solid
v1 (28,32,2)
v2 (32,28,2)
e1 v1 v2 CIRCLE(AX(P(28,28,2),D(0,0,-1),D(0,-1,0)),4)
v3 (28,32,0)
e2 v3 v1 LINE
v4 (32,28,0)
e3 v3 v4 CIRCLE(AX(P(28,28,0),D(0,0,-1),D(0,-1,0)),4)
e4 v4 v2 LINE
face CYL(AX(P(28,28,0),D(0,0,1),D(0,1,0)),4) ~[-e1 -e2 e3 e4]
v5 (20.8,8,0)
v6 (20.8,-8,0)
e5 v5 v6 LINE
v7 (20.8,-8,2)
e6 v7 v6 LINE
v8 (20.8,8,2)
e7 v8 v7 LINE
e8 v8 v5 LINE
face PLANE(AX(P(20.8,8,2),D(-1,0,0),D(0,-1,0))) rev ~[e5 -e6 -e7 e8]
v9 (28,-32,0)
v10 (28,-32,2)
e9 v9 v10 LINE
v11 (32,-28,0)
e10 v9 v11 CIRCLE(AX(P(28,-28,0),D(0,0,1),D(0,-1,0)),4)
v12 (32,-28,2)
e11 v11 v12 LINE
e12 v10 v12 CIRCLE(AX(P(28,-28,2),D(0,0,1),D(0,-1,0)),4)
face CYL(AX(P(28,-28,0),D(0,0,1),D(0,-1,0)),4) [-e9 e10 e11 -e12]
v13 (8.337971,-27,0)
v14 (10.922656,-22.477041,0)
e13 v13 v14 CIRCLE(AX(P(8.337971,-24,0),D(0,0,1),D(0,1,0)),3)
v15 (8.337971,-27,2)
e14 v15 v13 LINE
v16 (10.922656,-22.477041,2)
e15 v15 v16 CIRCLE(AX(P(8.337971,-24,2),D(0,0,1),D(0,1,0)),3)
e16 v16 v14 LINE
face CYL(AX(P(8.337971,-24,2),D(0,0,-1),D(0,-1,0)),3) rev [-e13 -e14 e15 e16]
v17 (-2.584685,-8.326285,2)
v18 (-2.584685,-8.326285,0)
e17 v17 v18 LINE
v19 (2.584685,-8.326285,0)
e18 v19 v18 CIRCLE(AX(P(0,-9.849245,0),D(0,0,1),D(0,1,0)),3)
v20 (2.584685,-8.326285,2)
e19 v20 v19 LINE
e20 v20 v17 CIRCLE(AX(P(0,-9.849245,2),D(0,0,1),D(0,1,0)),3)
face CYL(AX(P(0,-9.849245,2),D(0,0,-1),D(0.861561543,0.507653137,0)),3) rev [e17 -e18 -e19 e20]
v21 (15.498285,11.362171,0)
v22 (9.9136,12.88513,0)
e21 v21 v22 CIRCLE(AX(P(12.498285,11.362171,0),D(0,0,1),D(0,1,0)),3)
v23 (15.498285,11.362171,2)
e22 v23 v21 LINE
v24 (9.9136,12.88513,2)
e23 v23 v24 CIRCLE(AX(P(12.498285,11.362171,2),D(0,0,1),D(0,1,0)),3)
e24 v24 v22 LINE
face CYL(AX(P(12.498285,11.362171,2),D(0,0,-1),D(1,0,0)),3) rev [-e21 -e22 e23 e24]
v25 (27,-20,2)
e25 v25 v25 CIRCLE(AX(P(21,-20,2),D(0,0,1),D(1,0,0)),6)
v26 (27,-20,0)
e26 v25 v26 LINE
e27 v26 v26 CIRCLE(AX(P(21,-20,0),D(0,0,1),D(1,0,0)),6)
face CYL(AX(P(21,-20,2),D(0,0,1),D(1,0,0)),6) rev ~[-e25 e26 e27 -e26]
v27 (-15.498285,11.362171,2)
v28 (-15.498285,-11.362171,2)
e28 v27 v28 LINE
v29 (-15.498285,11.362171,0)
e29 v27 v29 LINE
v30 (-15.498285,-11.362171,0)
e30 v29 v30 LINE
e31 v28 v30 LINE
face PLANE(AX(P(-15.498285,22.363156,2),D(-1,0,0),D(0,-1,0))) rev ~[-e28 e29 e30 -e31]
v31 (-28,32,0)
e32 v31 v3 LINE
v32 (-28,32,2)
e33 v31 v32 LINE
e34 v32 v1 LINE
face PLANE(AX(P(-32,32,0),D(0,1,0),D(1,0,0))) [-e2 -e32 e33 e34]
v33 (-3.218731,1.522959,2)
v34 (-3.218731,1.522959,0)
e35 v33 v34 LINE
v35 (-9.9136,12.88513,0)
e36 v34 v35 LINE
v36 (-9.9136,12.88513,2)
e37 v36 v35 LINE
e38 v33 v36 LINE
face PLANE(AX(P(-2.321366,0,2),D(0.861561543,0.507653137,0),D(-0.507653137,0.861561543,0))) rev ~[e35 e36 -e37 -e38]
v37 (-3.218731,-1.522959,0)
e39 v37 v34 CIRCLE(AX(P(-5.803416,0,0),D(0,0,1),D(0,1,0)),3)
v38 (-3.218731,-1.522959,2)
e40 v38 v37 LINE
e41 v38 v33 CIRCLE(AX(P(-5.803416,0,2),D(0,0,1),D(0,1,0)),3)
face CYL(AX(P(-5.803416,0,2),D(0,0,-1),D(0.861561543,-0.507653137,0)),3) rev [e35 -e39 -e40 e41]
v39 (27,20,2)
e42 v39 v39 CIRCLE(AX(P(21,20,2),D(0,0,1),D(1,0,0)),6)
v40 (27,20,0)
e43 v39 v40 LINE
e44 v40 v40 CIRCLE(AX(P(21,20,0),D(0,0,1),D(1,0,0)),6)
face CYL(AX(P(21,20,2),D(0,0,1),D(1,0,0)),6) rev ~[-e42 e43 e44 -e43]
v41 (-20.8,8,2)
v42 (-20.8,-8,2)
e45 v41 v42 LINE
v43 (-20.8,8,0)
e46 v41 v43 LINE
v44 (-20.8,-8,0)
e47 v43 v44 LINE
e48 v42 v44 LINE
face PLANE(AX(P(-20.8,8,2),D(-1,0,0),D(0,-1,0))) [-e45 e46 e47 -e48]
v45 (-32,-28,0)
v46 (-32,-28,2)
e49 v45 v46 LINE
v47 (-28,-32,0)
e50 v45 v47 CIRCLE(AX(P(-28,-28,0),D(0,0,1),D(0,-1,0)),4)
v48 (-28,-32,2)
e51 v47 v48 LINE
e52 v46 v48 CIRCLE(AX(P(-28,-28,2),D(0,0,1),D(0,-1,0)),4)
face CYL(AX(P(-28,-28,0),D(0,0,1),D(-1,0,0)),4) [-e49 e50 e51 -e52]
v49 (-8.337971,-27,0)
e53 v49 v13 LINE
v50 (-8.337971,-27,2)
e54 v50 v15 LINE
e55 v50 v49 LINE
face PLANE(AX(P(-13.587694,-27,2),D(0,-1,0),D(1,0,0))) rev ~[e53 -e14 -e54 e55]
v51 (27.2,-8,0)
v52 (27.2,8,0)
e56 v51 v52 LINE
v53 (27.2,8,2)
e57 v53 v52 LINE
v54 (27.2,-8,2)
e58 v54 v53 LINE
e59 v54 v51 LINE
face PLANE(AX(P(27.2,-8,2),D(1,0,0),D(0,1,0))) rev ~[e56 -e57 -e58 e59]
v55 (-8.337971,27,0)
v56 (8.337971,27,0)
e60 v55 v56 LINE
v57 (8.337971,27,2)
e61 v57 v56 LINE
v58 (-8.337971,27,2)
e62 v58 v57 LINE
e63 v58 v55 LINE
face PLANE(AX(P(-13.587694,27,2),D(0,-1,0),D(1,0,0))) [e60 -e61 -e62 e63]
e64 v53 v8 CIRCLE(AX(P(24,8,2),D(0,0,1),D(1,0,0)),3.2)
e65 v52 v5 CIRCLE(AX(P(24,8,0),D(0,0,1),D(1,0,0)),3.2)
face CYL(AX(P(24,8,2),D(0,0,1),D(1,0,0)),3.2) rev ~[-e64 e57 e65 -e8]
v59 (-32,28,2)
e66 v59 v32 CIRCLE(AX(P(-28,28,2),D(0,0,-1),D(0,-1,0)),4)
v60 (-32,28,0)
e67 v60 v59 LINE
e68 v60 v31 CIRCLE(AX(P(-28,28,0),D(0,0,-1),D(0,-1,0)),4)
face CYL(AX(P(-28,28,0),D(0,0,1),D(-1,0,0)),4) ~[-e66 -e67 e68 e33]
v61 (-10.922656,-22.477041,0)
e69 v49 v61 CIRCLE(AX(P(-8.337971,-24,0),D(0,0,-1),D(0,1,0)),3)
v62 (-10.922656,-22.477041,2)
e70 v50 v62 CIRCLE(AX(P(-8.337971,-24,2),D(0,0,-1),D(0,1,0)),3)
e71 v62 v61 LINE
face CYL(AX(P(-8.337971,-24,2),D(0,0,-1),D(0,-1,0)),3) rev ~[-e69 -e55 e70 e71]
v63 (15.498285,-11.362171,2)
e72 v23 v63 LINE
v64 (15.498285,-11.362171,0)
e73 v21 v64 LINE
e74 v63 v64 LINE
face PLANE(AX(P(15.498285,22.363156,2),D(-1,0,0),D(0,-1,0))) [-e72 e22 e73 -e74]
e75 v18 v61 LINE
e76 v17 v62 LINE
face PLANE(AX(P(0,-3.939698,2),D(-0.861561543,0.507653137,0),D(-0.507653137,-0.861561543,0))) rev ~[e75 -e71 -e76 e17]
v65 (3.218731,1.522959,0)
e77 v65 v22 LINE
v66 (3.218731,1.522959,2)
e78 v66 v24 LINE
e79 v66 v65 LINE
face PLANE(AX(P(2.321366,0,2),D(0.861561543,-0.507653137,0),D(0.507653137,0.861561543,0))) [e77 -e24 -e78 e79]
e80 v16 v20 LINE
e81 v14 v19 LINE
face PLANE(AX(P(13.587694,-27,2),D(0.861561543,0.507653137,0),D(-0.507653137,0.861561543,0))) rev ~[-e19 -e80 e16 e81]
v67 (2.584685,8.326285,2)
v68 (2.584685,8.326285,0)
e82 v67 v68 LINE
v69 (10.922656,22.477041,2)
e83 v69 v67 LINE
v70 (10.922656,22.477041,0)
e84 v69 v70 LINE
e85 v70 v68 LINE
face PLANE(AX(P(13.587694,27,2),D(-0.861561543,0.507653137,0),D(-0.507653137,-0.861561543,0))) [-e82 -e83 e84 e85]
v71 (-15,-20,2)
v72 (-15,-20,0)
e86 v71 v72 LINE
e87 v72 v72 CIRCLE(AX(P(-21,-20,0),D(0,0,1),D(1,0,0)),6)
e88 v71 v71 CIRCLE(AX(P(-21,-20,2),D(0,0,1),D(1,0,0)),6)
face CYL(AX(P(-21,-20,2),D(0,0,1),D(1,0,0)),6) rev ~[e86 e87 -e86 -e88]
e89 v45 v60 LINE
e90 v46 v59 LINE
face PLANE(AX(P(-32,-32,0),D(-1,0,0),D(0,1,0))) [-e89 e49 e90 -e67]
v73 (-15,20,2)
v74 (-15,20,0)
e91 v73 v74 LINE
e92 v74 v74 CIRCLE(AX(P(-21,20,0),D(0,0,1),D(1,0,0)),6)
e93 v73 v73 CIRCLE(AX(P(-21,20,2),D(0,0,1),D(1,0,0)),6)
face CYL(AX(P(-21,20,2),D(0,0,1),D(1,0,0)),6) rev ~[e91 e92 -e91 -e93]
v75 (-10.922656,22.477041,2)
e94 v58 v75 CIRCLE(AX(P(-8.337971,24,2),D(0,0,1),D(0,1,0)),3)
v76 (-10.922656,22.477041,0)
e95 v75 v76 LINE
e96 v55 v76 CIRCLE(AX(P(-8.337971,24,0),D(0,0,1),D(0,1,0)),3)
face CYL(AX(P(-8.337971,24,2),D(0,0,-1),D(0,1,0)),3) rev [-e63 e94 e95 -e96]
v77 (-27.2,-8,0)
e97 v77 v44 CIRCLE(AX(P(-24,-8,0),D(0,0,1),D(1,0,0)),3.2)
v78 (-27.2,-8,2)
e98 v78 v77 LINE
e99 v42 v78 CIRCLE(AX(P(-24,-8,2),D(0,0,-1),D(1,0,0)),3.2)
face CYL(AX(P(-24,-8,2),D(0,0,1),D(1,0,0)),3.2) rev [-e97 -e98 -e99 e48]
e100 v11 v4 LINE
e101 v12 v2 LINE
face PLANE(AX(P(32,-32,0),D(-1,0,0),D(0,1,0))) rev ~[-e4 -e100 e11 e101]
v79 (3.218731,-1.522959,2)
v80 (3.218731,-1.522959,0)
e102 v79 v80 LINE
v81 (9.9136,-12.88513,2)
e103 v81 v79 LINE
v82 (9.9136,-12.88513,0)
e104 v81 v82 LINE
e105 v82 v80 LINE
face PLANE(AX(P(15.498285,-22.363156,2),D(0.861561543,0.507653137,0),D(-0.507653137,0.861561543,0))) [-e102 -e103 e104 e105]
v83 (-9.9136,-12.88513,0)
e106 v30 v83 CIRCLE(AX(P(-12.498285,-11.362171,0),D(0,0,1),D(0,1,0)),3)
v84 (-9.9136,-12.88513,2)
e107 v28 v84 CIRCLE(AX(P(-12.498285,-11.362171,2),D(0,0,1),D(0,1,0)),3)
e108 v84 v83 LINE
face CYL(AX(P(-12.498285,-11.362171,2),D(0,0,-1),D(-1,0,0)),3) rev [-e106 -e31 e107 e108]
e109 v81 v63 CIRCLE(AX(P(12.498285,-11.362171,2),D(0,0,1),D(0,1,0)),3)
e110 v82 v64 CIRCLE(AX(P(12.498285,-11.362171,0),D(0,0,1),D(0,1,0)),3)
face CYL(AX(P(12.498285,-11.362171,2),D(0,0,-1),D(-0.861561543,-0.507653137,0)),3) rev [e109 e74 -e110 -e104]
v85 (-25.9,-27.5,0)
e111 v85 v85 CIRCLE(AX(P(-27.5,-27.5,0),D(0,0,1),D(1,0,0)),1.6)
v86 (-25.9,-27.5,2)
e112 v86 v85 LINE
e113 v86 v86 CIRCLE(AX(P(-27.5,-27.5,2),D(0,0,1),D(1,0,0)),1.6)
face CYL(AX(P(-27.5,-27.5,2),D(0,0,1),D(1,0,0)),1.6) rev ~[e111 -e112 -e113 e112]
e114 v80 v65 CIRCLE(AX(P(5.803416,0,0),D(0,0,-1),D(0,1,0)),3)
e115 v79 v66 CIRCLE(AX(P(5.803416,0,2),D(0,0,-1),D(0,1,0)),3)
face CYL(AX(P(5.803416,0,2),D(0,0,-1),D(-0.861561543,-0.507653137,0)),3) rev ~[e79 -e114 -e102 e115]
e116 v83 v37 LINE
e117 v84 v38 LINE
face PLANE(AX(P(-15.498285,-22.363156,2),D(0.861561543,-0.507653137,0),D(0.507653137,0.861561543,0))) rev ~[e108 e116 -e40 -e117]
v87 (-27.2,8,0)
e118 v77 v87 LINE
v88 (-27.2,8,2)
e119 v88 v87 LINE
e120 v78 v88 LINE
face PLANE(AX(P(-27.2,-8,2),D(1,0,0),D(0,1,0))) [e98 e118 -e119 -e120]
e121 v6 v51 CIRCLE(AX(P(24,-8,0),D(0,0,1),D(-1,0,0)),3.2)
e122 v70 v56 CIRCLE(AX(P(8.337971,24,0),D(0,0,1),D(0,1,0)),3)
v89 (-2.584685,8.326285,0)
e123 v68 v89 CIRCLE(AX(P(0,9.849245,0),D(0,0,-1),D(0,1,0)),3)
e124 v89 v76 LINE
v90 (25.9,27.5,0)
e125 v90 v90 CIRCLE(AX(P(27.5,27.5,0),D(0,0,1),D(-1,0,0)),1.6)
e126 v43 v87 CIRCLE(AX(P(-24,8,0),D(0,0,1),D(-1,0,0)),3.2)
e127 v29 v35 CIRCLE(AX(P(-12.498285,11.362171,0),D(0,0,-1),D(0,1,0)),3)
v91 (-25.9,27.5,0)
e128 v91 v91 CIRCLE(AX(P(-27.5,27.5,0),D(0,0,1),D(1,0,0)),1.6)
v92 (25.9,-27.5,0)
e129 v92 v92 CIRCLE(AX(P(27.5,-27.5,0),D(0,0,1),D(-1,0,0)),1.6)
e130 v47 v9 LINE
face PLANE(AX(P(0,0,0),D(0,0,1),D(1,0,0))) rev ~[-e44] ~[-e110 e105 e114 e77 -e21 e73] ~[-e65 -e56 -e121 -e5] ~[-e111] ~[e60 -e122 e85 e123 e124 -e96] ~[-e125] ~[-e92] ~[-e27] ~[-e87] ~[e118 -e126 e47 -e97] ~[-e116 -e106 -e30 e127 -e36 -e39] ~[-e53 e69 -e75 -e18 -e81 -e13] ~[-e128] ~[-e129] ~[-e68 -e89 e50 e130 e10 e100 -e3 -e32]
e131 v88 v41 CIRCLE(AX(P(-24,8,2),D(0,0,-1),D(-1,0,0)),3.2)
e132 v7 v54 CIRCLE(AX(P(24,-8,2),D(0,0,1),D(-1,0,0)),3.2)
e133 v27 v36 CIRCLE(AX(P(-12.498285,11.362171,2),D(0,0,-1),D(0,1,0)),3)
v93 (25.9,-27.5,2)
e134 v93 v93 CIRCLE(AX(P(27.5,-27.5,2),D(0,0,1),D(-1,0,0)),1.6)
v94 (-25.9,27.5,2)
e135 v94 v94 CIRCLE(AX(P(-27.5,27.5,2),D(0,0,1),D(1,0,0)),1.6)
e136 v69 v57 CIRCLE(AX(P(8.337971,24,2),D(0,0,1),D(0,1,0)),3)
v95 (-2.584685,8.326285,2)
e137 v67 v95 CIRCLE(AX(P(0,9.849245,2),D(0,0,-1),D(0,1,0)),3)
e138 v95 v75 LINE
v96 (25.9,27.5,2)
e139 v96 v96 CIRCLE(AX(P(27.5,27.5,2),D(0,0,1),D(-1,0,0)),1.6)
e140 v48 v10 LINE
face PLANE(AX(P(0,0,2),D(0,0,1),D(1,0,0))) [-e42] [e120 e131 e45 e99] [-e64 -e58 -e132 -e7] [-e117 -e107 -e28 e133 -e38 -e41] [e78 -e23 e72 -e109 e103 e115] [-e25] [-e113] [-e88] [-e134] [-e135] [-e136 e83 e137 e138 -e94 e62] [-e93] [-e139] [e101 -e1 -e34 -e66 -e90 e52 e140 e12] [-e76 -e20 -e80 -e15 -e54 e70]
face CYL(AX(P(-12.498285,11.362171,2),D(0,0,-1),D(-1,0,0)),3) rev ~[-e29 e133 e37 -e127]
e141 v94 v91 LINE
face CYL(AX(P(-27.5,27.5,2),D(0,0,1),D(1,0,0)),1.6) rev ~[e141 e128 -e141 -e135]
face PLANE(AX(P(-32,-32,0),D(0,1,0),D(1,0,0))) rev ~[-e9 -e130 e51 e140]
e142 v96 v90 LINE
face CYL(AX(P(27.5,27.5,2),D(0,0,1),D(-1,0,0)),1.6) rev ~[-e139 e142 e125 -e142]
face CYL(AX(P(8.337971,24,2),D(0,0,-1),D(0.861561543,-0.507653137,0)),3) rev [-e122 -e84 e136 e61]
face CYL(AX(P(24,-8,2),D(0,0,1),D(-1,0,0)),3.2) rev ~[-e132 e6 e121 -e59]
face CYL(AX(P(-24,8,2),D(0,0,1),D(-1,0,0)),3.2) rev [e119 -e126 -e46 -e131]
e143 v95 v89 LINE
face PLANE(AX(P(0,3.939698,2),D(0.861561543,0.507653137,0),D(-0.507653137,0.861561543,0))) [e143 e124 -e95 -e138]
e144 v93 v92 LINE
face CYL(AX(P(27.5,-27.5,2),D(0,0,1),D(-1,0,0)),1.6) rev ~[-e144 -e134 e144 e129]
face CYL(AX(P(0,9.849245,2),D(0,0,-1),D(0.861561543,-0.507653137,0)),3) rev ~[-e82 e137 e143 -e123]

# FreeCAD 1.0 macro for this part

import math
import FreeCAD as App
import Part
import Sketcher
from FreeCAD import Vector
Q = App.Units.Quantity


def edges_at(feature, points):
    """Names of the edges that pass closest to the given points."""
    edges = feature.Shape.Edges
    near = lambda p: min(range(len(edges)), key=lambda i: edges[i].distToShape(Part.Vertex(*p))[0])
    return sorted({f"Edge{near(p) + 1}" for p in points})

doc = App.newDocument("Part")
body = doc.addObject("PartDesign::Body", "Body")

# Sketch on XY plane
sketch1 = doc.addObject("Sketcher::SketchObject", "Sketch")
body.addObject(sketch1)
sketch1.AttachmentSupport = (doc.XY_Plane, [""])
sketch1.MapMode = "FlatFace"
sketch1.addGeometry([
    Part.LineSegment(Vector(-32, 32, 0), Vector(-32, -32, 0)),
    Part.LineSegment(Vector(-32, -32, 0), Vector(32, -32, 0)),
    Part.LineSegment(Vector(32, -32, 0), Vector(32, 32, 0)),
    Part.LineSegment(Vector(32, 32, 0), Vector(-32, 32, 0)),
], False)
sketch1.addConstraint([
    Sketcher.Constraint("Coincident", 0, 2, 1, 1),
    Sketcher.Constraint("Coincident", 1, 2, 2, 1),
    Sketcher.Constraint("Coincident", 2, 2, 3, 1),
    Sketcher.Constraint("Coincident", 3, 2, 0, 1),
    Sketcher.Constraint("Vertical", 0),
    Sketcher.Constraint("Horizontal", 1),
    Sketcher.Constraint("Vertical", 2),
    Sketcher.Constraint("Horizontal", 3),
    Sketcher.Constraint("Symmetric", 0, 2, 2, 2, -1, 1),
    Sketcher.Constraint("Equal", 3, 0),
    Sketcher.Constraint("DistanceX", 1, 1, 1, 2, Q("64 mm")),
])
pad1 = doc.addObject("PartDesign::Pad", "Pad")
body.addObject(pad1)
pad1.Profile = sketch1
pad1.Length = 2

# Sketch on XY plane
sketch2 = doc.addObject("Sketcher::SketchObject", "Sketch001")
body.addObject(sketch2)
sketch2.AttachmentSupport = (doc.XY_Plane, [""])
sketch2.MapMode = "FlatFace"
sketch2.AttachmentOffset = App.Placement(Vector(0, 0, 2), App.Rotation())
sketch2.addGeometry([
    Part.Circle(Vector(-27.5, -27.5, 0), Vector(0, 0, 1), 1.6),
    Part.Circle(Vector(-27.5, 27.5, 0), Vector(0, 0, 1), 1.6),
    Part.Circle(Vector(27.5, -27.5, 0), Vector(0, 0, 1), 1.6),
    Part.Circle(Vector(27.5, 27.5, 0), Vector(0, 0, 1), 1.6),
], False)
sketch2.addConstraint([
    Sketcher.Constraint("Equal", 0, 1),
    Sketcher.Constraint("Equal", 1, 2),
    Sketcher.Constraint("Equal", 2, 3),
    Sketcher.Constraint("Symmetric", 1, 3, 2, 3, -1, 1),
    Sketcher.Constraint("Symmetric", 0, 3, 3, 3, -1, 1),
    Sketcher.Constraint("Symmetric", 0, 3, 2, 3, -2),
    Sketcher.Constraint("Diameter", 0, Q("3.2 mm")),
    Sketcher.Constraint("DistanceY", 0, 3, 1, 3, Q("55 mm")),
    Sketcher.Constraint("DistanceX", 0, 3, 2, 3, Q("55 mm")),
])
pocket1 = doc.addObject("PartDesign::Pocket", "Pocket")
body.addObject(pocket1)
pocket1.Profile = sketch2
pocket1.Length = 2
doc.recompute()

fillet = doc.addObject("PartDesign::Fillet", "Fillet")
body.addObject(fillet)
fillet.Base = (pocket1, edges_at(pocket1, [
    (32, -32, 1),
    (-32, -32, 1),
    (-32, 32, 1),
    (32, 32, 1),
]))
fillet.Radius = 4

# Sketch on XY plane
sketch3 = doc.addObject("Sketcher::SketchObject", "Sketch002")
body.addObject(sketch3)
sketch3.AttachmentSupport = (doc.XY_Plane, [""])
sketch3.MapMode = "FlatFace"
sketch3.AttachmentOffset = App.Placement(Vector(0, 0, 2), App.Rotation())
sketch3.addGeometry([
    Part.LineSegment(Vector(-20.8, -8, 0), Vector(-20.8, 8, 0)),  # 0
    Part.ArcOfCircle(Part.Circle(Vector(-24, 8, 0), Vector(0, 0, 1), 3.2), math.radians(0), math.radians(180)),  # 1
    Part.LineSegment(Vector(-27.2, 8, 0), Vector(-27.2, -8, 0)),  # 2
    Part.ArcOfCircle(Part.Circle(Vector(-24, -8, 0), Vector(0, 0, 1), 3.2), math.radians(180), math.radians(360)),  # 3
    Part.LineSegment(Vector(20.8, 8, 0), Vector(20.8, -8, 0)),  # 4
    Part.ArcOfCircle(Part.Circle(Vector(24, -8, 0), Vector(0, 0, 1), 3.2), math.radians(180), math.radians(360)),  # 5
    Part.LineSegment(Vector(27.2, -8, 0), Vector(27.2, 8, 0)),  # 6
    Part.ArcOfCircle(Part.Circle(Vector(24, 8, 0), Vector(0, 0, 1), 3.2), math.radians(0), math.radians(180)),  # 7
], False)
sketch3.addConstraint([
    Sketcher.Constraint("Tangent", 0, 2, 1, 1),
    Sketcher.Constraint("Tangent", 1, 2, 2, 1),
    Sketcher.Constraint("Tangent", 2, 2, 3, 1),
    Sketcher.Constraint("Tangent", 3, 2, 0, 1),
    Sketcher.Constraint("Tangent", 4, 2, 5, 1),
    Sketcher.Constraint("Tangent", 5, 2, 6, 1),
    Sketcher.Constraint("Tangent", 6, 2, 7, 1),
    Sketcher.Constraint("Tangent", 7, 2, 4, 1),
    Sketcher.Constraint("Vertical", 0),
    Sketcher.Constraint("Vertical", 2),
    Sketcher.Constraint("Vertical", 4),
    Sketcher.Constraint("Vertical", 6),
    Sketcher.Constraint("Equal", 3, 5),
    Sketcher.Constraint("Symmetric", 1, 3, 5, 3, -1, 1),
    Sketcher.Constraint("Horizontal", 3, 3, 5, 3),
    Sketcher.Constraint("Horizontal", 1, 3, 7, 3),
    Sketcher.Constraint("Radius", 1, Q("3.2 mm")),
    Sketcher.Constraint("DistanceY", 0, 1, 0, 2, Q("16 mm")),
    Sketcher.Constraint("DistanceX", 1, 3, -1, 1, Q("24 mm")),
])
pocket2 = doc.addObject("PartDesign::Pocket", "Pocket001")
body.addObject(pocket2)
pocket2.Profile = sketch3
pocket2.Length = 10

# Sketch on XY plane
sketch4 = doc.addObject("Sketcher::SketchObject", "Sketch003")
body.addObject(sketch4)
sketch4.AttachmentSupport = (doc.XY_Plane, [""])
sketch4.MapMode = "FlatFace"
sketch4.AttachmentOffset = App.Placement(Vector(0, 0, 2), App.Rotation())
sketch4.addGeometry([
    Part.LineSegment(Vector(-15, 22, 0), Vector(-15, -22, 0)),  # 0
    Part.LineSegment(Vector(-15, -22, 0), Vector(-2, 0, 0)),  # 1
    Part.LineSegment(Vector(-2, 0, 0), Vector(-15, 22, 0)),  # 2
    Part.LineSegment(Vector(-14, -27, 0), Vector(14, -27, 0)),  # 3
    Part.LineSegment(Vector(14, -27, 0), Vector(0, -4, 0)),  # 4
    Part.LineSegment(Vector(0, -4, 0), Vector(-14, -27, 0)),  # 5
    Part.LineSegment(Vector(15, 22, 0), Vector(2, 0, 0)),  # 6
    Part.LineSegment(Vector(2, 0, 0), Vector(15, -22, 0)),  # 7
    Part.LineSegment(Vector(15, -22, 0), Vector(15, 22, 0)),  # 8
    Part.LineSegment(Vector(-14, 27, 0), Vector(0, 4, 0)),  # 9
    Part.LineSegment(Vector(0, 4, 0), Vector(14, 27, 0)),  # 10
    Part.LineSegment(Vector(14, 27, 0), Vector(-14, 27, 0)),  # 11
], False)
sketch4.addConstraint([
    Sketcher.Constraint("Coincident", 0, 2, 1, 1),
    Sketcher.Constraint("Coincident", 1, 2, 2, 1),
    Sketcher.Constraint("Coincident", 2, 2, 0, 1),
    Sketcher.Constraint("Coincident", 3, 2, 4, 1),
    Sketcher.Constraint("Coincident", 4, 2, 5, 1),
    Sketcher.Constraint("Coincident", 5, 2, 3, 1),
    Sketcher.Constraint("Coincident", 6, 2, 7, 1),
    Sketcher.Constraint("Coincident", 7, 2, 8, 1),
    Sketcher.Constraint("Coincident", 8, 2, 6, 1),
    Sketcher.Constraint("Coincident", 9, 2, 10, 1),
    Sketcher.Constraint("Coincident", 10, 2, 11, 1),
    Sketcher.Constraint("Coincident", 11, 2, 9, 1),
    Sketcher.Constraint("Vertical", 0),
    Sketcher.Constraint("Horizontal", 3),
    Sketcher.Constraint("Vertical", 8),
    Sketcher.Constraint("Horizontal", 11),
    Sketcher.Constraint("Symmetric", 1, 2, 6, 2, -1, 1),
    Sketcher.Constraint("Symmetric", 2, 2, 7, 2, -1, 1),
    Sketcher.Constraint("Symmetric", 4, 2, 9, 2, -1, 1),
    Sketcher.Constraint("Symmetric", 5, 2, 10, 2, -1, 1),
    Sketcher.Constraint("PointOnObject", 1, 2, -1),
    Sketcher.Constraint("PointOnObject", 4, 2, -2),
    Sketcher.Constraint("Parallel", 2, 4),
    Sketcher.Constraint("Parallel", 1, 5),
    Sketcher.Constraint("Parallel", 5, 6),
    Sketcher.Constraint("Parallel", 7, 9),
    Sketcher.Constraint("Horizontal", 0, 2, 7, 2),
    Sketcher.Constraint("DistanceY", 3, 2, -1, 1, Q("27 mm")),
    Sketcher.Constraint("DistanceX", 3, 1, 3, 2, Q("27.175388 mm")),
    Sketcher.Constraint("DistanceY", 0, 2, 0, 1, Q("44.726312 mm")),
    Sketcher.Constraint("Distance", 1, Q("25.956539 mm")),
    Sketcher.Constraint("DistanceX", 0, 2, 3, 2, Q("29.085979 mm")),
])
pocket3 = doc.addObject("PartDesign::Pocket", "Pocket002")
body.addObject(pocket3)
pocket3.Profile = sketch4
pocket3.Length = 10
doc.recompute()

fillet2 = doc.addObject("PartDesign::Fillet", "Fillet001")
body.addObject(fillet2)
fillet2.Base = (pocket3, edges_at(pocket3, [
    (15.498, -22.363, 1),
    (2.321, 0, 1),
    (15.498, 22.363, 1),
    (-13.588, -27, 1),
    (0, -3.94, 1),
    (13.588, -27, 1),
    (13.588, 27, 1),
    (0, 3.94, 1),
    (-13.588, 27, 1),
    (-2.321, 0, 1),
    (-15.498, -22.363, 1),
    (-15.498, 22.363, 1),
]))
fillet2.Radius = 3

# Sketch on XY plane
sketch5 = doc.addObject("Sketcher::SketchObject", "Sketch004")
body.addObject(sketch5)
sketch5.AttachmentSupport = (doc.XY_Plane, [""])
sketch5.MapMode = "FlatFace"
sketch5.AttachmentOffset = App.Placement(Vector(0, 0, 2), App.Rotation())
sketch5.addGeometry([
    Part.Circle(Vector(21, 20, 0), Vector(0, 0, 1), 6),
    Part.Circle(Vector(-21, 20, 0), Vector(0, 0, 1), 6),
    Part.Circle(Vector(21, -20, 0), Vector(0, 0, 1), 6),
    Part.Circle(Vector(-21, -20, 0), Vector(0, 0, 1), 6),
], False)
sketch5.addConstraint([
    Sketcher.Constraint("Equal", 0, 1),
    Sketcher.Constraint("Equal", 1, 2),
    Sketcher.Constraint("Equal", 2, 3),
    Sketcher.Constraint("Symmetric", 1, 3, 2, 3, -1, 1),
    Sketcher.Constraint("Symmetric", 0, 3, 3, 3, -1, 1),
    Sketcher.Constraint("Symmetric", 0, 3, 1, 3, -2),
    Sketcher.Constraint("Diameter", 0, Q("12 mm")),
    Sketcher.Constraint("DistanceX", -1, 1, 0, 3, Q("21 mm")),
    Sketcher.Constraint("DistanceY", -1, 1, 0, 3, Q("20 mm")),
])
pocket4 = doc.addObject("PartDesign::Pocket", "Pocket003")
body.addObject(pocket4)
pocket4.Profile = sketch5
pocket4.Length = 10

doc.recompute()
